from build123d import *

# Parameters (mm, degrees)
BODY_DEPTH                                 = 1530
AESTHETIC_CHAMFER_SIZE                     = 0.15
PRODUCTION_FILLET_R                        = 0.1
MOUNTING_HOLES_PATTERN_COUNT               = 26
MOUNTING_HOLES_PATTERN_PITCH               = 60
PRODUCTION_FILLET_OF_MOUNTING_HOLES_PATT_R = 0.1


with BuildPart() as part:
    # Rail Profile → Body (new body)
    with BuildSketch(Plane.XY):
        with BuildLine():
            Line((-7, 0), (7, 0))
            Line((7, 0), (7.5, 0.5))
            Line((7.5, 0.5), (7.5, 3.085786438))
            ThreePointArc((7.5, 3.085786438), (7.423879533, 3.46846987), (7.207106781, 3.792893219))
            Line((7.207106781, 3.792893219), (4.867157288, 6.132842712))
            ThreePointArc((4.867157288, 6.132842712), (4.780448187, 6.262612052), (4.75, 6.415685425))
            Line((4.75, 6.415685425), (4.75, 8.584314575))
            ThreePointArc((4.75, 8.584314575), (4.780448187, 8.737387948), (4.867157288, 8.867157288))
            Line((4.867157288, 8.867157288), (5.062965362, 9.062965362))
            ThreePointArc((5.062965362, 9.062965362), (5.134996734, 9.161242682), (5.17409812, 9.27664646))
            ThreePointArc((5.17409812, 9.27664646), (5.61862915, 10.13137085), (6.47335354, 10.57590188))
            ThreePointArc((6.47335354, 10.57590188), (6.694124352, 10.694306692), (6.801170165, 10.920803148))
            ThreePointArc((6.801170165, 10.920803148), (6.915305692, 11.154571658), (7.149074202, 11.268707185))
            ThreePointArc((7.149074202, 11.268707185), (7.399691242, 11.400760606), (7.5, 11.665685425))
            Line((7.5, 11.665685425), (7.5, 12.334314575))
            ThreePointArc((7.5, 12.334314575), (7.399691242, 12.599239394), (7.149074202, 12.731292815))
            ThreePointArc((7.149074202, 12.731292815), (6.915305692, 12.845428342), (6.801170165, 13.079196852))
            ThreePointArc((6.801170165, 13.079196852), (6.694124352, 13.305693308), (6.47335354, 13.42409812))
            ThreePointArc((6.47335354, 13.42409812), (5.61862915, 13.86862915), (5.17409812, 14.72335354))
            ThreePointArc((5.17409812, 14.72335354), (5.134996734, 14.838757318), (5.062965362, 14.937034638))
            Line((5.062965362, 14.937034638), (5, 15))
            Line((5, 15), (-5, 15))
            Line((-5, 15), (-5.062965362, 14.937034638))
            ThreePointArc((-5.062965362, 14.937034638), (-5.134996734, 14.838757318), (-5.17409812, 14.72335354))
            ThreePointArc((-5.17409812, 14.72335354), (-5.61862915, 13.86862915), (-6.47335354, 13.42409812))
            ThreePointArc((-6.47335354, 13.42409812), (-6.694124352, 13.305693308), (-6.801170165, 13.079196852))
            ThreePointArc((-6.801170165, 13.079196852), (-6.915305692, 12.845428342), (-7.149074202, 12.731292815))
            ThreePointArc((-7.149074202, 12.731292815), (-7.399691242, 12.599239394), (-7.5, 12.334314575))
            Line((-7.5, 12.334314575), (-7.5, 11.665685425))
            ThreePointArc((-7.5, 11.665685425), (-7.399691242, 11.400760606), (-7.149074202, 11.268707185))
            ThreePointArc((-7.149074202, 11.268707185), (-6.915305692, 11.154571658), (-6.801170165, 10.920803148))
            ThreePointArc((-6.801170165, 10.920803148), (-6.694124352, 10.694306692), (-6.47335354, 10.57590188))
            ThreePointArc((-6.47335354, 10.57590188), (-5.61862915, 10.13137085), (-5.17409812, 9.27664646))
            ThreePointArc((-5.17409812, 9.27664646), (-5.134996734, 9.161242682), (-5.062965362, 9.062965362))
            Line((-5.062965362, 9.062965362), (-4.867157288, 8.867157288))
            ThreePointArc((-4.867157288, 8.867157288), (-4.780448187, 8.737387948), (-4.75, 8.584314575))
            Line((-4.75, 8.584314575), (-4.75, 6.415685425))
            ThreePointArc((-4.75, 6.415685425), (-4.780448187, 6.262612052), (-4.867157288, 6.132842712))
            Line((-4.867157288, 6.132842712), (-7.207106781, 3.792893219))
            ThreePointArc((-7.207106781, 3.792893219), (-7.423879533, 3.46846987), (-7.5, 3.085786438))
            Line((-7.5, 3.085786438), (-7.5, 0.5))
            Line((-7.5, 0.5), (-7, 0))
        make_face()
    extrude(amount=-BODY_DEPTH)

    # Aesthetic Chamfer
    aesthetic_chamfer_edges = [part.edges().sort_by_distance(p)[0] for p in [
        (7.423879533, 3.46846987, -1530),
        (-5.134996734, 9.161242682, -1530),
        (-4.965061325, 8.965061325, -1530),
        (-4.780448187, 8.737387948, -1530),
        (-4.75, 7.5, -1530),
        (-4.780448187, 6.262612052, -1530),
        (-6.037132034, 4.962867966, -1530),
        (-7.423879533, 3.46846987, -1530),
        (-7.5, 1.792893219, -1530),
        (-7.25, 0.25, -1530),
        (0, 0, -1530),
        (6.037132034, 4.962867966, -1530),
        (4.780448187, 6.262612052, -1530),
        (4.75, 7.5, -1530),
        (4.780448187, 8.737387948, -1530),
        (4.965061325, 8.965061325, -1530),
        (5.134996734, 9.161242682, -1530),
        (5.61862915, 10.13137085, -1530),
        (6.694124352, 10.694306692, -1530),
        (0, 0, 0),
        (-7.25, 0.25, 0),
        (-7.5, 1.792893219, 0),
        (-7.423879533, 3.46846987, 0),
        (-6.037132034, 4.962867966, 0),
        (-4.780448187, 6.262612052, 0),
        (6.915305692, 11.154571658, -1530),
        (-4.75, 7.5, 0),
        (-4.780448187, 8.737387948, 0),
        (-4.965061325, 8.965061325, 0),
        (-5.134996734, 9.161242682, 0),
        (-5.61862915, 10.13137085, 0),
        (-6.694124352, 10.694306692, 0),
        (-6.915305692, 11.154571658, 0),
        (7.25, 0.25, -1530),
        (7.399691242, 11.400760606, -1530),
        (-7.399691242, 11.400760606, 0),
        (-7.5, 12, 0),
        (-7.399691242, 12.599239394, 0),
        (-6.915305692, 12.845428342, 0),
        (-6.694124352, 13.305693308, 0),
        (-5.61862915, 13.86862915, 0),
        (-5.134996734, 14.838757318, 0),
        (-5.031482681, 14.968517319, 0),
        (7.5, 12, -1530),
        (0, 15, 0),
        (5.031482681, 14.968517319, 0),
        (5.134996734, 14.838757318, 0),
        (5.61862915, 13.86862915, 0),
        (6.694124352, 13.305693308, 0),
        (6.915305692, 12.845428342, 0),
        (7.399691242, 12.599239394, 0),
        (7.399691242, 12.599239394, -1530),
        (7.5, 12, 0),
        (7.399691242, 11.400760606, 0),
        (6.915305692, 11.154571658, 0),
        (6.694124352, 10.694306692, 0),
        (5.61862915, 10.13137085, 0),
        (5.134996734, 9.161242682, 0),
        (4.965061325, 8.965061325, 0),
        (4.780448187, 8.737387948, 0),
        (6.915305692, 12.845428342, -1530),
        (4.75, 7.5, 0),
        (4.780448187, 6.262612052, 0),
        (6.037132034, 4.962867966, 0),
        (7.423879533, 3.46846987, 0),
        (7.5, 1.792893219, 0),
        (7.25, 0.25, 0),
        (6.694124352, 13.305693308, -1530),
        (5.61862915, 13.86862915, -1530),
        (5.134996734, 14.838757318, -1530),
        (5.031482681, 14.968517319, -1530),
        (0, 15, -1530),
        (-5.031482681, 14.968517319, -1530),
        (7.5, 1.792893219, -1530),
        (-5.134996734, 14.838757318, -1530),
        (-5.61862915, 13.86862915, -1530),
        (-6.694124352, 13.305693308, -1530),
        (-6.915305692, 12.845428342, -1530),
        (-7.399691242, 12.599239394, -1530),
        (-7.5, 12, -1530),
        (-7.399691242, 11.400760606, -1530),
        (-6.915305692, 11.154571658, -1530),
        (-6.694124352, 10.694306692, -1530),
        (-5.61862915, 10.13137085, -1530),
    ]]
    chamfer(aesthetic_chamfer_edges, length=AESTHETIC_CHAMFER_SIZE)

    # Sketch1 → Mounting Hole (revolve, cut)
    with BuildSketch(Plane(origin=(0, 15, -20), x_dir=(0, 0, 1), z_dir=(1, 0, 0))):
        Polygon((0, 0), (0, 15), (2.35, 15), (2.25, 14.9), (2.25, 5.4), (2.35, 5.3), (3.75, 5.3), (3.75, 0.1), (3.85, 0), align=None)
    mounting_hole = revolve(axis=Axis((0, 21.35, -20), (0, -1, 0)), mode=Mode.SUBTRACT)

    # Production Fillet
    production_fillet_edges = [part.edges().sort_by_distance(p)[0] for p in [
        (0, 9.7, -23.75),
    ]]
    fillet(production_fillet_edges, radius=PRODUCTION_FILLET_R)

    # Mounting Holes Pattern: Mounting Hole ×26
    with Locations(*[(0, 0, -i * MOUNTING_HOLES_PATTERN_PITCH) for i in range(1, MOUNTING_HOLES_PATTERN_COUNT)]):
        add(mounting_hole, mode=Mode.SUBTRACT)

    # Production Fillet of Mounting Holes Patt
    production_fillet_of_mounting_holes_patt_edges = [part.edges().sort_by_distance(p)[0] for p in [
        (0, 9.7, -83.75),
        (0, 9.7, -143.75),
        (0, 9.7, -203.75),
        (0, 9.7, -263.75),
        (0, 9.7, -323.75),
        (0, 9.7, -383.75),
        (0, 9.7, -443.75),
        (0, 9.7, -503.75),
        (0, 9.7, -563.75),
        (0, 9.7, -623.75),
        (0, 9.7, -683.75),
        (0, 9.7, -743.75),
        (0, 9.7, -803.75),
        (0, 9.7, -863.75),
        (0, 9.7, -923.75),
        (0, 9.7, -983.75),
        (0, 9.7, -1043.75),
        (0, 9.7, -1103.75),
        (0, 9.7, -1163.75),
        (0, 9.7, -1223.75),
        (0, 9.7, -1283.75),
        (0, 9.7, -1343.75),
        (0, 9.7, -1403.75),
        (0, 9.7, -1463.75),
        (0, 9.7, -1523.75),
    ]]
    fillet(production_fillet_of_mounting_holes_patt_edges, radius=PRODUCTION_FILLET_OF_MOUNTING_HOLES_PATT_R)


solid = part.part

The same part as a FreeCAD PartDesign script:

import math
import FreeCAD as App
import Part
import Sketcher


def edges_at(feature, points):
    """Names of the edges that pass closest to the given points."""
    edges = feature.Shape.Edges
    near = lambda p: min(range(len(edges)), key=lambda i: edges[i].distToShape(Part.Vertex(*p))[0])
    return sorted({f"Edge{near(p) + 1}" for p in points})


def add_polygon(sketch, points):
    """Adds a closed chain of lines whose ends are joined by coincident constraints."""
    first, n = sketch.GeometryCount, len(points)
    for a, b in zip(points, points[1:] + points[:1]):
        sketch.addGeometry(Part.LineSegment(App.Vector(*a, 0), App.Vector(*b, 0)), False)
    for i in range(n):
        sketch.addConstraint(Sketcher.Constraint("Coincident", first + i, 2, first + (i + 1) % n, 1))

doc = App.newDocument("Part")
body = doc.addObject("PartDesign::Body", "Body")

sketch1 = doc.addObject("Sketcher::SketchObject", "Sketch")
body.addObject(sketch1)
sketch1.AttachmentSupport = (doc.XY_Plane, [""])
sketch1.MapMode = "FlatFace"
sketch1.addGeometry([
    Part.LineSegment(App.Vector(-7, 0, 0), App.Vector(7, 0, 0)),
    Part.LineSegment(App.Vector(7, 0, 0), App.Vector(7.5, 0.5, 0)),
    Part.LineSegment(App.Vector(7.5, 0.5, 0), App.Vector(7.5, 3.09, 0)),
    Part.ArcOfCircle(Part.Circle(App.Vector(6.5, 3.09, 0), App.Vector(0, 0, 1), 1), math.radians(0), math.radians(45)),
    Part.LineSegment(App.Vector(7.21, 3.79, 0), App.Vector(4.87, 6.13, 0)),
    Part.ArcOfCircle(Part.Circle(App.Vector(5.15, 6.42, 0), App.Vector(0, 0, 1), 0.4), math.radians(180), math.radians(225)),
    Part.LineSegment(App.Vector(4.75, 6.42, 0), App.Vector(4.75, 8.58, 0)),
    Part.ArcOfCircle(Part.Circle(App.Vector(5.15, 8.58, 0), App.Vector(0, 0, 1), 0.4), math.radians(135), math.radians(180)),
    Part.LineSegment(App.Vector(4.87, 8.87, 0), App.Vector(5.06, 9.06, 0)),
    Part.ArcOfCircle(Part.Circle(App.Vector(4.78, 9.35, 0), App.Vector(0, 0, 1), 0.4), math.radians(-45), math.radians(-10)),
    Part.ArcOfCircle(Part.Circle(App.Vector(6.75, 9, 0), App.Vector(0, 0, 1), 1.6), math.radians(100), math.radians(170)),
    Part.ArcOfCircle(Part.Circle(App.Vector(6.4, 10.97, 0), App.Vector(0, 0, 1), 0.4), math.radians(-80), math.radians(-7)),
    Part.ArcOfCircle(Part.Circle(App.Vector(7.2, 10.87, 0), App.Vector(0, 0, 1), 0.4), math.radians(97), math.radians(173)),
    Part.ArcOfCircle(Part.Circle(App.Vector(7.1, 11.67, 0), App.Vector(0, 0, 1), 0.4), math.radians(-83), math.radians(0)),
    Part.LineSegment(App.Vector(7.5, 11.67, 0), App.Vector(7.5, 12.33, 0)),
    Part.ArcOfCircle(Part.Circle(App.Vector(7.1, 12.33, 0), App.Vector(0, 0, 1), 0.4), math.radians(0), math.radians(83)),
    Part.ArcOfCircle(Part.Circle(App.Vector(7.2, 13.13, 0), App.Vector(0, 0, 1), 0.4), math.radians(-173), math.radians(-97)),
    Part.ArcOfCircle(Part.Circle(App.Vector(6.4, 13.03, 0), App.Vector(0, 0, 1), 0.4), math.radians(7), math.radians(80)),
    Part.ArcOfCircle(Part.Circle(App.Vector(6.75, 15, 0), App.Vector(0, 0, 1), 1.6), math.radians(-170), math.radians(-100)),
    Part.ArcOfCircle(Part.Circle(App.Vector(4.78, 14.65, 0), App.Vector(0, 0, 1), 0.4), math.radians(10), math.radians(45)),
    Part.LineSegment(App.Vector(5.06, 14.94, 0), App.Vector(5, 15, 0)),
    Part.LineSegment(App.Vector(5, 15, 0), App.Vector(-5, 15, 0)),
    Part.LineSegment(App.Vector(-5, 15, 0), App.Vector(-5.06, 14.94, 0)),
    Part.ArcOfCircle(Part.Circle(App.Vector(-4.78, 14.65, 0), App.Vector(0, 0, 1), 0.4), math.radians(135), math.radians(170)),
    Part.ArcOfCircle(Part.Circle(App.Vector(-6.75, 15, 0), App.Vector(0, 0, 1), 1.6), math.radians(-80), math.radians(-10)),
    Part.ArcOfCircle(Part.Circle(App.Vector(-6.4, 13.03, 0), App.Vector(0, 0, 1), 0.4), math.radians(100), math.radians(173)),
    Part.ArcOfCircle(Part.Circle(App.Vector(-7.2, 13.13, 0), App.Vector(0, 0, 1), 0.4), math.radians(-83), math.radians(-7)),
    Part.ArcOfCircle(Part.Circle(App.Vector(-7.1, 12.33, 0), App.Vector(0, 0, 1), 0.4), math.radians(97), math.radians(180)),
    Part.LineSegment(App.Vector(-7.5, 12.33, 0), App.Vector(-7.5, 11.67, 0)),
    Part.ArcOfCircle(Part.Circle(App.Vector(-7.1, 11.67, 0), App.Vector(0, 0, 1), 0.4), math.radians(180), math.radians(263)),
    Part.ArcOfCircle(Part.Circle(App.Vector(-7.2, 10.87, 0), App.Vector(0, 0, 1), 0.4), math.radians(7), math.radians(83)),
    Part.ArcOfCircle(Part.Circle(App.Vector(-6.4, 10.97, 0), App.Vector(0, 0, 1), 0.4), math.radians(-173), math.radians(-100)),
    Part.ArcOfCircle(Part.Circle(App.Vector(-6.75, 9, 0), App.Vector(0, 0, 1), 1.6), math.radians(10), math.radians(80)),
    Part.ArcOfCircle(Part.Circle(App.Vector(-4.78, 9.35, 0), App.Vector(0, 0, 1), 0.4), math.radians(-170), math.radians(-135)),
    Part.LineSegment(App.Vector(-5.06, 9.06, 0), App.Vector(-4.87, 8.87, 0)),
    Part.ArcOfCircle(Part.Circle(App.Vector(-5.15, 8.58, 0), App.Vector(0, 0, 1), 0.4), math.radians(0), math.radians(45)),
    Part.LineSegment(App.Vector(-4.75, 8.58, 0), App.Vector(-4.75, 6.42, 0)),
    Part.ArcOfCircle(Part.Circle(App.Vector(-5.15, 6.42, 0), App.Vector(0, 0, 1), 0.4), math.radians(-45), math.radians(0)),
    Part.LineSegment(App.Vector(-4.87, 6.13, 0), App.Vector(-7.21, 3.79, 0)),
    Part.ArcOfCircle(Part.Circle(App.Vector(-6.5, 3.09, 0), App.Vector(0, 0, 1), 1), math.radians(135), math.radians(180)),
    Part.LineSegment(App.Vector(-7.5, 3.09, 0), App.Vector(-7.5, 0.5, 0)),
    Part.LineSegment(App.Vector(-7.5, 0.5, 0), App.Vector(-7, 0, 0)),
], False)
sketch1.addConstraint([
    Sketcher.Constraint("Coincident", 0, 2, 1, 1),
    Sketcher.Constraint("Coincident", 1, 2, 2, 1),
    Sketcher.Constraint("Tangent", 2, 2, 3, 1),
    Sketcher.Constraint("Tangent", 3, 2, 4, 1),
    Sketcher.Constraint("Tangent", 4, 2, 5, 2),
    Sketcher.Constraint("Tangent", 5, 1, 6, 1),
    Sketcher.Constraint("Tangent", 6, 2, 7, 2),
    Sketcher.Constraint("Tangent", 7, 1, 8, 1),
    Sketcher.Constraint("Tangent", 8, 2, 9, 1),
    Sketcher.Constraint("Tangent", 9, 2, 10, 2),
    Sketcher.Constraint("Tangent", 10, 1, 11, 1),
    Sketcher.Constraint("Tangent", 11, 2, 12, 2),
    Sketcher.Constraint("Tangent", 12, 1, 13, 1),
    Sketcher.Constraint("Tangent", 13, 2, 14, 1),
    Sketcher.Constraint("Tangent", 14, 2, 15, 1),
    Sketcher.Constraint("Tangent", 15, 2, 16, 2),
    Sketcher.Constraint("Tangent", 16, 1, 17, 1),
    Sketcher.Constraint("Tangent", 17, 2, 18, 2),
    Sketcher.Constraint("Tangent", 18, 1, 19, 1),
    Sketcher.Constraint("Tangent", 19, 2, 20, 1),
    Sketcher.Constraint("Coincident", 20, 2, 21, 1),
    Sketcher.Constraint("Coincident", 21, 2, 22, 1),
    Sketcher.Constraint("Tangent", 22, 2, 23, 1),
    Sketcher.Constraint("Tangent", 23, 2, 24, 2),
    Sketcher.Constraint("Tangent", 24, 1, 25, 1),
    Sketcher.Constraint("Tangent", 25, 2, 26, 2),
    Sketcher.Constraint("Tangent", 26, 1, 27, 1),
    Sketcher.Constraint("Tangent", 27, 2, 28, 1),
    Sketcher.Constraint("Tangent", 28, 2, 29, 1),
    Sketcher.Constraint("Tangent", 29, 2, 30, 2),
    Sketcher.Constraint("Tangent", 30, 1, 31, 1),
    Sketcher.Constraint("Tangent", 31, 2, 32, 2),
    Sketcher.Constraint("Tangent", 32, 1, 33, 1),
    Sketcher.Constraint("Tangent", 33, 2, 34, 1),
    Sketcher.Constraint("Tangent", 34, 2, 35, 2),
    Sketcher.Constraint("Tangent", 35, 1, 36, 1),
    Sketcher.Constraint("Tangent", 36, 2, 37, 2),
    Sketcher.Constraint("Tangent", 37, 1, 38, 1),
    Sketcher.Constraint("Tangent", 38, 2, 39, 1),
    Sketcher.Constraint("Tangent", 39, 2, 40, 1),
    Sketcher.Constraint("Coincident", 40, 2, 41, 1),
    Sketcher.Constraint("Coincident", 41, 2, 0, 1),
    Sketcher.Constraint("Horizontal", 0),
    Sketcher.Constraint("Vertical", 2),
    Sketcher.Constraint("Vertical", 6),
    Sketcher.Constraint("Vertical", 14),
    Sketcher.Constraint("Horizontal", 21),
    Sketcher.Constraint("Vertical", 28),
    Sketcher.Constraint("Vertical", 36),
    Sketcher.Constraint("Vertical", 40),
    Sketcher.Constraint("Equal", 5, 7),
    Sketcher.Constraint("Equal", 7, 9),
    Sketcher.Constraint("Equal", 9, 11),
    Sketcher.Constraint("Equal", 11, 12),
    Sketcher.Constraint("Equal", 12, 13),
    Sketcher.Constraint("Equal", 13, 15),
    Sketcher.Constraint("Equal", 15, 16),
    Sketcher.Constraint("Equal", 16, 17),
    Sketcher.Constraint("Equal", 10, 18),
    Sketcher.Constraint("Equal", 17, 19),
    Sketcher.Constraint("Equal", 19, 23),
    Sketcher.Constraint("Equal", 18, 24),
    Sketcher.Constraint("Equal", 23, 25),
    Sketcher.Constraint("Equal", 25, 26),
    Sketcher.Constraint("Equal", 26, 27),
    Sketcher.Constraint("Equal", 27, 29),
    Sketcher.Constraint("Equal", 29, 30),
    Sketcher.Constraint("Equal", 30, 31),
    Sketcher.Constraint("Equal", 24, 32),
    Sketcher.Constraint("Equal", 31, 33),
    Sketcher.Constraint("Equal", 33, 35),
    Sketcher.Constraint("Equal", 35, 37),
    Sketcher.Constraint("Equal", 3, 39),
    Sketcher.Constraint("Symmetric", 0, 2, 41, 2, -1, 1),
    Sketcher.Constraint("Symmetric", 19, 3, 23, 3, -2),
    Sketcher.Constraint("Symmetric", 17, 3, 25, 3, -2),
    Sketcher.Constraint("Symmetric", 15, 3, 27, 3, -2),
    Sketcher.Constraint("Symmetric", 12, 3, 30, 3, -2),
    Sketcher.Constraint("Symmetric", 10, 3, 32, 3, -2),
    Sketcher.Constraint("Symmetric", 7, 3, 35, 3, -2),
    Sketcher.Constraint("Symmetric", 3, 3, 39, 3, -2),
    Sketcher.Constraint("Perpendicular", 1, 4),
    Sketcher.Constraint("Perpendicular", 4, 8),
    Sketcher.Constraint("Perpendicular", 8, 20),
    Sketcher.Constraint("Perpendicular", 20, 22),
    Sketcher.Constraint("Perpendicular", 22, 34),
    Sketcher.Constraint("Perpendicular", 34, 38),
    Sketcher.Constraint("Perpendicular", 38, 41),
    Sketcher.Constraint("Horizontal", 9, 3, 33, 3),
    Sketcher.Constraint("Horizontal", 24, 3, 20, 2),
    Sketcher.Constraint("Vertical", 12, 3, 16, 3),
    Sketcher.Constraint("Vertical", 11, 3, 17, 3),
    Sketcher.Constraint("Vertical", 10, 3, 18, 3),
    Sketcher.Constraint("Vertical", 9, 3, 19, 3),
    Sketcher.Constraint("Vertical", 2, 2, 13, 2),
    Sketcher.Constraint("Radius", 3, 1.0),
    Sketcher.Constraint("Radius", 5, 0.4),
    Sketcher.Constraint("Radius", 10, 1.6),
    Sketcher.Constraint("DistanceX", 0, 1, 0, 2, 14.0),
    Sketcher.Constraint("DistanceX", 21, 2, 21, 1, 10.0),
    Sketcher.Constraint("DistanceY", -1, 1, 10, 3, 9.0),
    Sketcher.Constraint("DistanceY", -1, 1, 18, 3, 15.0),
    Sketcher.Constraint("DistanceX", -1, 1, 3, 3, 6.5),
    Sketcher.Constraint("DistanceX", -1, 1, 5, 3, 5.15),
    Sketcher.Constraint("DistanceX", -1, 1, 10, 3, 6.75),
    Sketcher.Constraint("DistanceY", 6, 1, 6, 2, 2.168629),
    Sketcher.Constraint("DistanceY", 14, 1, 14, 2, 0.668629),
    Sketcher.Constraint("DistanceY", -1, 1, 10, 1, 10.575902),
])
pad1 = doc.addObject("PartDesign::Pad", "Pad")
body.addObject(pad1)
pad1.Profile = sketch1
pad1.Length = 1530
pad1.Reversed = True
doc.recompute()

chamfer = doc.addObject("PartDesign::Chamfer", "Chamfer")
body.addObject(chamfer)
chamfer.Base = (pad1, edges_at(pad1, [
    (7.424, 3.468, -1530),
    (-5.135, 9.161, -1530),
    (-4.965, 8.965, -1530),
    (-4.78, 8.737, -1530),
    (-4.75, 7.5, -1530),
    (-4.78, 6.263, -1530),
    (-6.037, 4.963, -1530),
    (-7.424, 3.468, -1530),
    (-7.5, 1.793, -1530),
    (-7.25, 0.25, -1530),
    (0, 0, -1530),
    (6.037, 4.963, -1530),
    (4.78, 6.263, -1530),
    (4.75, 7.5, -1530),
    (4.78, 8.737, -1530),
    (4.965, 8.965, -1530),
    (5.135, 9.161, -1530),
    (5.619, 10.131, -1530),
    (6.694, 10.694, -1530),
    (0, 0, 0),
    (-7.25, 0.25, 0),
    (-7.5, 1.793, 0),
    (-7.424, 3.468, 0),
    (-6.037, 4.963, 0),
    (-4.78, 6.263, 0),
    (6.915, 11.155, -1530),
    (-4.75, 7.5, 0),
    (-4.78, 8.737, 0),
    (-4.965, 8.965, 0),
    (-5.135, 9.161, 0),
    (-5.619, 10.131, 0),
    (-6.694, 10.694, 0),
    (-6.915, 11.155, 0),
    (7.25, 0.25, -1530),
    (7.4, 11.401, -1530),
    (-7.4, 11.401, 0),
    (-7.5, 12, 0),
    (-7.4, 12.599, 0),
    (-6.915, 12.845, 0),
    (-6.694, 13.306, 0),
    (-5.619, 13.869, 0),
    (-5.135, 14.839, 0),
    (-5.031, 14.969, 0),
    (7.5, 12, -1530),
    (0, 15, 0),
    (5.031, 14.969, 0),
    (5.135, 14.839, 0),
    (5.619, 13.869, 0),
    (6.694, 13.306, 0),
    (6.915, 12.845, 0),
    (7.4, 12.599, 0),
    (7.4, 12.599, -1530),
    (7.5, 12, 0),
    (7.4, 11.401, 0),
    (6.915, 11.155, 0),
    (6.694, 10.694, 0),
    (5.619, 10.131, 0),
    (5.135, 9.161, 0),
    (4.965, 8.965, 0),
    (4.78, 8.737, 0),
    (6.915, 12.845, -1530),
    (4.75, 7.5, 0),
    (4.78, 6.263, 0),
    (6.037, 4.963, 0),
    (7.424, 3.468, 0),
    (7.5, 1.793, 0),
    (7.25, 0.25, 0),
    (6.694, 13.306, -1530),
    (5.619, 13.869, -1530),
    (5.135, 14.839, -1530),
    (5.031, 14.969, -1530),
    (0, 15, -1530),
    (-5.031, 14.969, -1530),
    (7.5, 1.793, -1530),
    (-5.135, 14.839, -1530),
    (-5.619, 13.869, -1530),
    (-6.694, 13.306, -1530),
    (-6.915, 12.845, -1530),
    (-7.4, 12.599, -1530),
    (-7.5, 12, -1530),
    (-7.4, 11.401, -1530),
    (-6.915, 11.155, -1530),
    (-6.694, 10.694, -1530),
    (-5.619, 10.131, -1530),
]))
chamfer.Size = 0.15

sketch2 = doc.addObject("Sketcher::SketchObject", "Sketch001")
body.addObject(sketch2)
sketch2.AttachmentSupport = (doc.YZ_Plane, [""])
sketch2.MapMode = "FlatFace"
add_polygon(sketch2, [(0, -20), (15, -20), (15, -16.15), (14.9, -16.25), (9.7, -16.25), (9.7, -17.65), (9.6, -17.75), (0.1, -17.75), (0, -17.65)])
sketch2.addGeometry(Part.LineSegment(App.Vector(15, -20, 0), App.Vector(0, -20, 0)), True)
sketch2.addConstraint([
    Sketcher.Constraint("Horizontal", 0),
    Sketcher.Constraint("Vertical", 1),
    Sketcher.Constraint("Horizontal", 3),
    Sketcher.Constraint("Vertical", 4),
    Sketcher.Constraint("Horizontal", 6),
    Sketcher.Constraint("Vertical", 8),
    Sketcher.Constraint("Horizontal", 9),
    Sketcher.Constraint("Coincident", 9, 1, 0, 2),
    Sketcher.Constraint("PointOnObject", 7, 2, -2),
    Sketcher.Constraint("PointOnObject", 9, 2, -2),
    Sketcher.Constraint("Parallel", 2, 5),
    Sketcher.Constraint("Perpendicular", 5, 7),
    Sketcher.Constraint("Horizontal", 4, 2, 7, 2),
    Sketcher.Constraint("Equal", 2, 5),
    Sketcher.Constraint("Equal", 5, 7),
    Sketcher.Constraint("DistanceX", 0, 1, 0, 2, 15.0),
    Sketcher.Constraint("DistanceX", 3, 2, 3, 1, 5.2),
    Sketcher.Constraint("DistanceX", 6, 2, 6, 1, 9.5),
    Sketcher.Constraint("DistanceY", 4, 2, 4, 1, 1.4),
    Sketcher.Constraint("DistanceY", 0, 2, -1, 1, 20.0),
    Sketcher.Constraint("DistanceY", 1, 1, 1, 2, 3.85),
])
groove = doc.addObject("PartDesign::Groove", "Groove")
body.addObject(groove)
groove.Profile = sketch2
groove.ReferenceAxis = (sketch2, ["Axis0"])
groove.Angle = 360
doc.recompute()

fillet = doc.addObject("PartDesign::Fillet", "Fillet")
body.addObject(fillet)
fillet.Base = (groove, edges_at(groove, [(0, 9.7, -23.75)]))
fillet.Radius = 0.1
doc.recompute()

linearpattern = doc.addObject("PartDesign::LinearPattern", "LinearPattern")
body.addObject(linearpattern)
linearpattern.Originals = [groove]
linearpattern.Direction = (doc.Z_Axis, [""])
linearpattern.Mode = "offset"
linearpattern.Offset = 60
linearpattern.Occurrences = 26
linearpattern.Reversed = True
body.Tip = linearpattern
doc.recompute()

fillet2 = doc.addObject("PartDesign::Fillet", "Fillet001")
body.addObject(fillet2)
fillet2.Base = (linearpattern, edges_at(linearpattern, [
    (0, 9.7, -83.75),
    (0, 9.7, -143.75),
    (0, 9.7, -203.75),
    (0, 9.7, -263.75),
    (0, 9.7, -323.75),
    (0, 9.7, -383.75),
    (0, 9.7, -443.75),
    (0, 9.7, -503.75),
    (0, 9.7, -563.75),
    (0, 9.7, -623.75),
    (0, 9.7, -683.75),
    (0, 9.7, -743.75),
    (0, 9.7, -803.75),
    (0, 9.7, -863.75),
    (0, 9.7, -923.75),
    (0, 9.7, -983.75),
    (0, 9.7, -1043.75),
    (0, 9.7, -1103.75),
    (0, 9.7, -1163.75),
    (0, 9.7, -1223.75),
    (0, 9.7, -1283.75),
    (0, 9.7, -1343.75),
    (0, 9.7, -1403.75),
    (0, 9.7, -1463.75),
    (0, 9.7, -1523.75),
]))
fillet2.Radius = 0.1

doc.recompute()
